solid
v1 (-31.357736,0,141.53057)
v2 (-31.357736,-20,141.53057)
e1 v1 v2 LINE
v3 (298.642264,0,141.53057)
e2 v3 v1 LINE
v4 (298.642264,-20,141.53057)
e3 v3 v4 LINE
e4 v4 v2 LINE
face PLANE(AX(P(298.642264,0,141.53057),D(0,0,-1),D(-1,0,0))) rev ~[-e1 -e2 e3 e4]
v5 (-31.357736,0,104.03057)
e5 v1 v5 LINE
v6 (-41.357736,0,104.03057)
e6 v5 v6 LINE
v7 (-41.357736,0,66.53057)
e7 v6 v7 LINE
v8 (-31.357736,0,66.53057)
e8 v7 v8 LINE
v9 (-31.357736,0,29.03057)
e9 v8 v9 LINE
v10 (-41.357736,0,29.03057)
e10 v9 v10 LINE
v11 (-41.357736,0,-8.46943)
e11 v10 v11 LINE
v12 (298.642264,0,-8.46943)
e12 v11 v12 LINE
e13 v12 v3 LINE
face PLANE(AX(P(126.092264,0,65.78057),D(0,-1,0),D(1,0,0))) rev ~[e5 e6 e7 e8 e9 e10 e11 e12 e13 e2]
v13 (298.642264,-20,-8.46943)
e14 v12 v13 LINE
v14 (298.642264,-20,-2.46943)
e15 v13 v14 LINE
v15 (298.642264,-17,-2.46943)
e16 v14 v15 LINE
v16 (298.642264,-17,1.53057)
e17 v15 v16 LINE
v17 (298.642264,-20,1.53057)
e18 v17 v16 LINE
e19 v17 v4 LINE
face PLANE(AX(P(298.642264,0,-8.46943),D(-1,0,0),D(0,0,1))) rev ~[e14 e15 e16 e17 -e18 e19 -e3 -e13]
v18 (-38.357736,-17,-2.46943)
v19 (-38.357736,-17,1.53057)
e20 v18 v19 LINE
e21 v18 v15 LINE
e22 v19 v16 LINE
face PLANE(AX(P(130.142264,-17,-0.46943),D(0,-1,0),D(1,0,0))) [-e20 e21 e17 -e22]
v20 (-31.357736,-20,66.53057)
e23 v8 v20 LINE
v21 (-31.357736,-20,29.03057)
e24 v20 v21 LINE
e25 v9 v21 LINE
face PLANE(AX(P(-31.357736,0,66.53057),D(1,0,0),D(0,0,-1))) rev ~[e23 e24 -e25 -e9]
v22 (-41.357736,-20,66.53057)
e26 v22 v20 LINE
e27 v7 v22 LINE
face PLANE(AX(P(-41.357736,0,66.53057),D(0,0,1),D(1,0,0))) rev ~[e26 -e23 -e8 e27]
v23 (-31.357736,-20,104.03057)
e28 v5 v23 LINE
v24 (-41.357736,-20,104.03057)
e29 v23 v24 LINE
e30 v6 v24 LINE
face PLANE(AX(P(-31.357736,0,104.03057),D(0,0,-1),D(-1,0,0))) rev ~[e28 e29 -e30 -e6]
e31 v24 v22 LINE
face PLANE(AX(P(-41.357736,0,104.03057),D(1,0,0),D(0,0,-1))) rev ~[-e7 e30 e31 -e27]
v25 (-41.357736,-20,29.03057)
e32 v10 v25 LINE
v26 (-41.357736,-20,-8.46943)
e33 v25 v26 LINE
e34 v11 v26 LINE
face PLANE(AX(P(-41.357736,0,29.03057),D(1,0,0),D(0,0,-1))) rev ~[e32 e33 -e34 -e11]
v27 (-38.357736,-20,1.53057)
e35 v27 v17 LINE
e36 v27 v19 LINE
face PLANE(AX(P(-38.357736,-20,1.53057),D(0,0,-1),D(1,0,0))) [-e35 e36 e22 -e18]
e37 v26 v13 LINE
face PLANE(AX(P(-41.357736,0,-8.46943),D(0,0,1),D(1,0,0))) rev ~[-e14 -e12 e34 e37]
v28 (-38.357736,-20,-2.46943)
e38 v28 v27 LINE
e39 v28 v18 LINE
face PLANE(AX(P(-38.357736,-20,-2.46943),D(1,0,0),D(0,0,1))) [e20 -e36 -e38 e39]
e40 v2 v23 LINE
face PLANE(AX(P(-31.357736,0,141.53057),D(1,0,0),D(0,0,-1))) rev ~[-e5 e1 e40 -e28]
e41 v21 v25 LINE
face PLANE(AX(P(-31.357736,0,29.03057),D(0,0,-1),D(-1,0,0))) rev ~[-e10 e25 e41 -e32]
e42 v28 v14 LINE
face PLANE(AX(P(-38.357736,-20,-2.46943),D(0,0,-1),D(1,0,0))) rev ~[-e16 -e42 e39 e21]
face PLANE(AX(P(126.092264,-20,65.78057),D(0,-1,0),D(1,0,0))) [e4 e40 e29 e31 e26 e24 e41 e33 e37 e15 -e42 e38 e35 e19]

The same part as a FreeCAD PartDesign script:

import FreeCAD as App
import Part
import Sketcher

doc = App.newDocument("Part")
body = doc.addObject("PartDesign::Body", "Body")

# Sketch on XZ plane
sketch1 = doc.addObject("Sketcher::SketchObject", "Sketch")
body.addObject(sketch1)
sketch1.AttachmentSupport = (doc.XZ_Plane, [""])
sketch1.MapMode = "FlatFace"
sketch1.addGeometry([
    Part.LineSegment(App.Vector(299, -8, 0), App.Vector(299, 142, 0)),  # 0
    Part.LineSegment(App.Vector(299, 142, 0), App.Vector(-31, 142, 0)),  # 1
    Part.LineSegment(App.Vector(-31, 142, 0), App.Vector(-31, 104, 0)),  # 2
    Part.LineSegment(App.Vector(-31, 104, 0), App.Vector(-41, 104, 0)),  # 3
    Part.LineSegment(App.Vector(-41, 104, 0), App.Vector(-41, 67, 0)),  # 4
    Part.LineSegment(App.Vector(-41, 67, 0), App.Vector(-31, 67, 0)),  # 5
    Part.LineSegment(App.Vector(-31, 67, 0), App.Vector(-31, 29, 0)),  # 6
    Part.LineSegment(App.Vector(-31, 29, 0), App.Vector(-41, 29, 0)),  # 7
    Part.LineSegment(App.Vector(-41, 29, 0), App.Vector(-41, -8, 0)),  # 8
    Part.LineSegment(App.Vector(-41, -8, 0), App.Vector(299, -8, 0)),  # 9
], False)
sketch1.addConstraint([
    Sketcher.Constraint("Coincident", 0, 2, 1, 1),
    Sketcher.Constraint("Coincident", 1, 2, 2, 1),
    Sketcher.Constraint("Coincident", 2, 2, 3, 1),
    Sketcher.Constraint("Coincident", 3, 2, 4, 1),
    Sketcher.Constraint("Coincident", 4, 2, 5, 1),
    Sketcher.Constraint("Coincident", 5, 2, 6, 1),
    Sketcher.Constraint("Coincident", 6, 2, 7, 1),
    Sketcher.Constraint("Coincident", 7, 2, 8, 1),
    Sketcher.Constraint("Coincident", 8, 2, 9, 1),
    Sketcher.Constraint("Coincident", 9, 2, 0, 1),
    Sketcher.Constraint("Vertical", 0),
    Sketcher.Constraint("Horizontal", 1),
    Sketcher.Constraint("Vertical", 2),
    Sketcher.Constraint("Horizontal", 3),
    Sketcher.Constraint("Vertical", 4),
    Sketcher.Constraint("Horizontal", 5),
    Sketcher.Constraint("Vertical", 6),
    Sketcher.Constraint("Horizontal", 7),
    Sketcher.Constraint("Vertical", 8),
    Sketcher.Constraint("Horizontal", 9),
    Sketcher.Constraint("Vertical", 2, 2, 5, 2),
    Sketcher.Constraint("Vertical", 4, 2, 7, 2),
    Sketcher.Constraint("Equal", 2, 4),
    Sketcher.Constraint("Equal", 4, 6),
    Sketcher.Constraint("Equal", 6, 8),
    Sketcher.Constraint("DistanceX", 1, 2, 1, 1, 330.0),
    Sketcher.Constraint("DistanceX", 3, 2, 3, 1, 10.0),
    Sketcher.Constraint("DistanceY", 0, 1, 0, 2, 150.0),
    Sketcher.Constraint("DistanceY", -1, 1, 0, 2, 141.53057),
    Sketcher.Constraint("DistanceX", -1, 1, 0, 2, 298.642264),
])
pad1 = doc.addObject("PartDesign::Pad", "Pad")
body.addObject(pad1)
pad1.Profile = sketch1
pad1.Length = 20

# Sketch on XZ plane
sketch2 = doc.addObject("Sketcher::SketchObject", "Sketch001")
body.addObject(sketch2)
sketch2.AttachmentSupport = (doc.XZ_Plane, [""])
sketch2.MapMode = "FlatFace"
sketch2.AttachmentOffset = App.Placement(App.Vector(0, 0, 20), App.Rotation())
sketch2.addGeometry([
    Part.LineSegment(App.Vector(-38.4, 1.5, 0), App.Vector(-38.4, -2.5, 0)),
    Part.LineSegment(App.Vector(-38.4, -2.5, 0), App.Vector(298.6, -2.5, 0)),
    Part.LineSegment(App.Vector(298.6, -2.5, 0), App.Vector(298.6, 1.5, 0)),
    Part.LineSegment(App.Vector(298.6, 1.5, 0), App.Vector(-38.4, 1.5, 0)),
], False)
sketch2.addConstraint([
    Sketcher.Constraint("Coincident", 0, 2, 1, 1),
    Sketcher.Constraint("Coincident", 1, 2, 2, 1),
    Sketcher.Constraint("Coincident", 2, 2, 3, 1),
    Sketcher.Constraint("Coincident", 3, 2, 0, 1),
    Sketcher.Constraint("Vertical", 0),
    Sketcher.Constraint("Horizontal", 1),
    Sketcher.Constraint("Vertical", 2),
    Sketcher.Constraint("Horizontal", 3),
    Sketcher.Constraint("DistanceX", 1, 1, 1, 2, 337.0),
    Sketcher.Constraint("DistanceY", 0, 2, 0, 1, 4.0),
    Sketcher.Constraint("DistanceY", 0, 2, -1, 1, 2.46943),
    Sketcher.Constraint("DistanceX", 0, 2, -1, 1, 38.357736),
])
pocket1 = doc.addObject("PartDesign::Pocket", "Pocket")
body.addObject(pocket1)
pocket1.Profile = sketch2
pocket1.Length = 3

doc.recompute()
